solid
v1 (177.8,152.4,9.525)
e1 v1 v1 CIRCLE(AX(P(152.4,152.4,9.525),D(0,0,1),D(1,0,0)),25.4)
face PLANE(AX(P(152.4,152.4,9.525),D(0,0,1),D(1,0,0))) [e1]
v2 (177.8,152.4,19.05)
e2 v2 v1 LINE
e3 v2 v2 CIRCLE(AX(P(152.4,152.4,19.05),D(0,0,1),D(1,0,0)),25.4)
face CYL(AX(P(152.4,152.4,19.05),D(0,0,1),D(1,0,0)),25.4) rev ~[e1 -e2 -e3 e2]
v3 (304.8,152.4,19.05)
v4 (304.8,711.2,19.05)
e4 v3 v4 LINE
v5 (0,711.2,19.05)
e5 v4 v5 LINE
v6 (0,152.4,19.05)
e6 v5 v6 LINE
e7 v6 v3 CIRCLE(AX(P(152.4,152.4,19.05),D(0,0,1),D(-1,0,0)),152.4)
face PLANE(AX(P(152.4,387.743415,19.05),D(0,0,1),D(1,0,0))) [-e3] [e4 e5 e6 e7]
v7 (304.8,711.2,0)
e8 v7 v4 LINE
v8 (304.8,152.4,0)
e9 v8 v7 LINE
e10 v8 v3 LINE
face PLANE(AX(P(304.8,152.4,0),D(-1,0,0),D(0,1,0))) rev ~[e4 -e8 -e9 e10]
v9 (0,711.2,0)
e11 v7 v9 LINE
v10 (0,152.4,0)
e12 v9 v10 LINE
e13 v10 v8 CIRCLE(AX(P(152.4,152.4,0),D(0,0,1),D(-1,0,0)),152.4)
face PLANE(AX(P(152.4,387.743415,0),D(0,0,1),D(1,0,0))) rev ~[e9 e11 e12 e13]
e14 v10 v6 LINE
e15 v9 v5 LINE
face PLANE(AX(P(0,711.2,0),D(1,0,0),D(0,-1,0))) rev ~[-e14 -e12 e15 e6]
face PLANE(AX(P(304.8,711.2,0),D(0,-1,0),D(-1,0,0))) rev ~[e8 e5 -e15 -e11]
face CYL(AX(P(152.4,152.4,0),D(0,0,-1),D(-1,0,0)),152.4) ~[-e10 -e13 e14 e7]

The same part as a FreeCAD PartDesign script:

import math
import FreeCAD as App
import Part
import Sketcher

V = App.Vector
Q = App.Units.Quantity

doc = App.newDocument("Part")
body = doc.addObject("PartDesign::Body", "Body")

# Sketch on XY plane
sketch1 = body.newObject("Sketcher::SketchObject", "Sketch")
sketch1.AttachmentSupport = (doc.getObject("XY_Plane"), [""])
sketch1.MapMode = "FlatFace"
sketch1.addGeometry(Part.LineSegment(V(0, 711, 0), V(0, 152, 0)), False)
sketch1.addGeometry(Part.ArcOfCircle(Part.Circle(V(152, 152, 0), V(0, 0, 1), 152), math.radians(180), math.radians(360)), False)
sketch1.addGeometry(Part.LineSegment(V(305, 152, 0), V(305, 711, 0)), False)
sketch1.addGeometry(Part.LineSegment(V(305, 711, 0), V(0, 711, 0)), False)
sketch1.addConstraint(Sketcher.Constraint("Tangent", 0, 2, 1, 1))
sketch1.addConstraint(Sketcher.Constraint("Tangent", 1, 2, 2, 1))
sketch1.addConstraint(Sketcher.Constraint("Coincident", 2, 2, 3, 1))
sketch1.addConstraint(Sketcher.Constraint("Coincident", 3, 2, 0, 1))
sketch1.addConstraint(Sketcher.Constraint("Vertical", 0))
sketch1.addConstraint(Sketcher.Constraint("Vertical", 2))
sketch1.addConstraint(Sketcher.Constraint("Horizontal", 3))
sketch1.addConstraint(Sketcher.Constraint("PointOnObject", 0, 2, -2))
sketch1.addConstraint(Sketcher.Constraint("Radius", 1, Q("6 in")))
sketch1.addConstraint(Sketcher.Constraint("DistanceY", 0, 2, 0, 1, Q("22 in")))
sketch1.addConstraint(Sketcher.Constraint("DistanceY", -1, 1, 1, 3, Q("6 in")))
pad1 = body.newObject("PartDesign::Pad", "Pad")
pad1.Profile = sketch1
pad1.Length = Q("0.75 in")

# Sketch on XY plane
sketch2 = body.newObject("Sketcher::SketchObject", "Sketch001")
sketch2.AttachmentSupport = (doc.getObject("XY_Plane"), [""])
sketch2.MapMode = "FlatFace"
sketch2.AttachmentOffset = App.Placement(V(0, 0, 0.75 * 25.4), App.Rotation())
sketch2.addGeometry(Part.Circle(V(152, 152, 0), V(0, 0, 1), 25), False)
sketch2.addConstraint(Sketcher.Constraint("Diameter", 0, Q("2 in")))
sketch2.addConstraint(Sketcher.Constraint("DistanceX", -1, 1, 0, 3, Q("6 in")))
sketch2.addConstraint(Sketcher.Constraint("DistanceY", -1, 1, 0, 3, Q("6 in")))
pocket1 = body.newObject("PartDesign::Pocket", "Pocket")
pocket1.Profile = sketch2
pocket1.Length = Q("0.375 in")

doc.recompute()
